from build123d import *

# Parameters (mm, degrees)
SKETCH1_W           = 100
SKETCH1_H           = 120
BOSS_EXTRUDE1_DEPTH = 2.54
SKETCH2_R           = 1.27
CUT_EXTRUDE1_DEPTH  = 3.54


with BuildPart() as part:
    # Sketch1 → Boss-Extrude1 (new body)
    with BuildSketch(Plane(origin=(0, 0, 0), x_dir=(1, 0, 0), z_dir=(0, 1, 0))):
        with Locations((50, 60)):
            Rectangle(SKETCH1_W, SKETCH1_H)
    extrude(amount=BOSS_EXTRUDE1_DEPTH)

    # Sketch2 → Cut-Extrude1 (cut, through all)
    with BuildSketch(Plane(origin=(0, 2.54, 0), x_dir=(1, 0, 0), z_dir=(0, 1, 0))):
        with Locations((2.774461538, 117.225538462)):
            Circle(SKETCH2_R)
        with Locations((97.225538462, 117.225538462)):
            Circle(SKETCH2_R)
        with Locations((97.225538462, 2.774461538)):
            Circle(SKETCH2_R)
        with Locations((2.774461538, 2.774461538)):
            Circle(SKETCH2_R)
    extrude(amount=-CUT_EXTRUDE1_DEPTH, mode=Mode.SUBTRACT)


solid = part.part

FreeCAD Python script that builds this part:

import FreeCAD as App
import Part
import Sketcher

V = App.Vector
Q = App.Units.Quantity

doc = App.newDocument("Part")
body = doc.addObject("PartDesign::Body", "Body")

# Sketch on XZ plane
sketch1 = doc.addObject("Sketcher::SketchObject", "Sketch")
body.addObject(sketch1)
sketch1.AttachmentSupport = (doc.XZ_Plane, [""])
sketch1.MapMode = "FlatFace"
sketch1.addGeometry([
    Part.LineSegment(V(0, -120, 0), V(0, 0, 0)),
    Part.LineSegment(V(0, 0, 0), V(100, 0, 0)),
    Part.LineSegment(V(100, 0, 0), V(100, -120, 0)),
    Part.LineSegment(V(100, -120, 0), V(0, -120, 0)),
], False)
sketch1.addConstraint([
    Sketcher.Constraint("Coincident", 0, 2, 1, 1),
    Sketcher.Constraint("Coincident", 1, 2, 2, 1),
    Sketcher.Constraint("Coincident", 2, 2, 3, 1),
    Sketcher.Constraint("Coincident", 3, 2, 0, 1),
    Sketcher.Constraint("Vertical", 0),
    Sketcher.Constraint("Horizontal", 1),
    Sketcher.Constraint("Vertical", 2),
    Sketcher.Constraint("Horizontal", 3),
    Sketcher.Constraint("Coincident", 0, 2, -1, 1),
    Sketcher.Constraint("DistanceX", 1, 1, 1, 2, Q("100 mm")),
    Sketcher.Constraint("DistanceY", 0, 1, 0, 2, Q("120 mm")),
])
pad1 = doc.addObject("PartDesign::Pad", "Pad")
body.addObject(pad1)
pad1.Profile = sketch1
pad1.Length = 2.54
pad1.Reversed = True

# Sketch on XZ plane
sketch2 = doc.addObject("Sketcher::SketchObject", "Sketch001")
body.addObject(sketch2)
sketch2.AttachmentSupport = (doc.XZ_Plane, [""])
sketch2.MapMode = "FlatFace"
sketch2.AttachmentOffset = App.Placement(V(0, 0, -2.54), App.Rotation())
sketch2.addGeometry([
    Part.Circle(V(2.8, -117.2, 0), V(0, 0, 1), 1.3),
    Part.Circle(V(97.2, -117.2, 0), V(0, 0, 1), 1.3),
    Part.Circle(V(97.2, -2.8, 0), V(0, 0, 1), 1.3),
    Part.Circle(V(2.8, -2.8, 0), V(0, 0, 1), 1.3),
], False)
sketch2.addConstraint([
    Sketcher.Constraint("Equal", 0, 1),
    Sketcher.Constraint("Equal", 1, 2),
    Sketcher.Constraint("Equal", 2, 3),
    Sketcher.Constraint("Horizontal", 0, 3, 1, 3),
    Sketcher.Constraint("Horizontal", 2, 3, 3, 3),
    Sketcher.Constraint("Vertical", 1, 3, 2, 3),
    Sketcher.Constraint("Vertical", 0, 3, 3, 3),
    Sketcher.Constraint("Diameter", 0, Q("2.54 mm")),
    Sketcher.Constraint("DistanceX", -1, 1, 0, 3, Q("2.774462 mm")),
    Sketcher.Constraint("DistanceY", 0, 3, -1, 1, Q("117.225538 mm")),
    Sketcher.Constraint("DistanceX", -1, 1, 1, 3, Q("97.225538 mm")),
    Sketcher.Constraint("DistanceY", 2, 3, -1, 1, Q("2.774462 mm")),
])
pocket1 = doc.addObject("PartDesign::Pocket", "Pocket")
body.addObject(pocket1)
pocket1.Profile = sketch2
pocket1.Type = "ThroughAll"
pocket1.Reversed = True

doc.recompute()
